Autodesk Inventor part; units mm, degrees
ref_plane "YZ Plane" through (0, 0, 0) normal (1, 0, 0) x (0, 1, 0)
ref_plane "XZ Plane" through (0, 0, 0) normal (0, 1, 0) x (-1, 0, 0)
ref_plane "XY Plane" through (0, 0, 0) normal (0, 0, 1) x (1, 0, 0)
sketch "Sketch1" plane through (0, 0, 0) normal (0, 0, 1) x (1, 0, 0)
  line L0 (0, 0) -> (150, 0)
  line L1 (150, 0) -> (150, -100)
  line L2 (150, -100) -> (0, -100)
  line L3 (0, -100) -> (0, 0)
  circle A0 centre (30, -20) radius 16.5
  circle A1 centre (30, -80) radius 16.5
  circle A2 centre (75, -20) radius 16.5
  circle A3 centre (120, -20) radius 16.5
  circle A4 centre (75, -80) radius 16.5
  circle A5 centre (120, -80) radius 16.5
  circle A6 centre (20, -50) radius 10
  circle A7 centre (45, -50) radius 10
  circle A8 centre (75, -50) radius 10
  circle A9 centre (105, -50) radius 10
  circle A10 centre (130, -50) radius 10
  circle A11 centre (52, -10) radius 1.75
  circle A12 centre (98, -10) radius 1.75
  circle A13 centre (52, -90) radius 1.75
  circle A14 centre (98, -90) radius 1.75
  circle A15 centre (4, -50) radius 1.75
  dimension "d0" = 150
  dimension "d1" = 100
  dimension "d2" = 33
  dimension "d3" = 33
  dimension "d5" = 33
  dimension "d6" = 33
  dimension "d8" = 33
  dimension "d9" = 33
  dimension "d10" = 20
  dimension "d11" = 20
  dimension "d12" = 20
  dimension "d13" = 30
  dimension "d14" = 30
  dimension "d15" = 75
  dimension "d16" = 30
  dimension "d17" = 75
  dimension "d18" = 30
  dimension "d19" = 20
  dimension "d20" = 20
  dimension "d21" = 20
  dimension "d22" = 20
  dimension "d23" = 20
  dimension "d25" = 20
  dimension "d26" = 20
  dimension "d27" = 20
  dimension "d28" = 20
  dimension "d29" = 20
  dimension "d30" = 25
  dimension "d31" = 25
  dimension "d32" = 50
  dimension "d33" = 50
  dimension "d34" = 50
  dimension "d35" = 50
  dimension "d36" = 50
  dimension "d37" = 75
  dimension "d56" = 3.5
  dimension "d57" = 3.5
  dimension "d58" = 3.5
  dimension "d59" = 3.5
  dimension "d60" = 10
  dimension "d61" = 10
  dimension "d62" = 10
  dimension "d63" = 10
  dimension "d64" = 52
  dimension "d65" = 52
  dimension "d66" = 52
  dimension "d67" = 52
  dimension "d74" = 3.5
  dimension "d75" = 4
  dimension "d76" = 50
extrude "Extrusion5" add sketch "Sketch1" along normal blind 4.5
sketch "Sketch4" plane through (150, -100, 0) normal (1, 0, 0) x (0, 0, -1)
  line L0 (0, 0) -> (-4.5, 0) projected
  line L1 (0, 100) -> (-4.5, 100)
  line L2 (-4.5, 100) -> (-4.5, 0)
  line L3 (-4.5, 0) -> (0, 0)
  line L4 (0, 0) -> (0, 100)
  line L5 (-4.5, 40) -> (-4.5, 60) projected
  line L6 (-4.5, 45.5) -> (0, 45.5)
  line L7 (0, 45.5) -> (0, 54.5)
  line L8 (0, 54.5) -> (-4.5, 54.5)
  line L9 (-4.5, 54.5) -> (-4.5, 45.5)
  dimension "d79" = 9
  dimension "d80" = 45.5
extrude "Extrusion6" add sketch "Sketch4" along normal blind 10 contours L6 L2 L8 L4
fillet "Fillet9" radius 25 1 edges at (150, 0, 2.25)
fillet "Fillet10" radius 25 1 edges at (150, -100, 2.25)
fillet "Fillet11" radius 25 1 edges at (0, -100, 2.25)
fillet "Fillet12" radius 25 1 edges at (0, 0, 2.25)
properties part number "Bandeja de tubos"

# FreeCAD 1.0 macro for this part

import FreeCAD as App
import Part
import Sketcher


def edges_at(feature, points):
    """Names of the edges that pass closest to the given points."""
    edges = feature.Shape.Edges
    near = lambda p: min(range(len(edges)), key=lambda i: edges[i].distToShape(Part.Vertex(*p))[0])
    return sorted({f"Edge{near(p) + 1}" for p in points})


def add_polygon(sketch, points):
    """Adds a closed chain of lines whose ends are joined by coincident constraints."""
    first, n = sketch.GeometryCount, len(points)
    for a, b in zip(points, points[1:] + points[:1]):
        sketch.addGeometry(Part.LineSegment(App.Vector(*a, 0), App.Vector(*b, 0)), False)
    for i in range(n):
        sketch.addConstraint(Sketcher.Constraint("Coincident", first + i, 2, first + (i + 1) % n, 1))

doc = App.newDocument("Part")
params = doc.addObject("Spreadsheet::Sheet", "Params")
for row, (alias, value) in enumerate([
    ("sketch1_diameter", "33 mm"),
    ("sketch1_diameter2", "20 mm"),
    ("sketch1_diameter3", "3.5 mm"),
    ("sketch1_width", "150 mm"),
    ("sketch1_height", "100 mm"),
    ("pad1_length", "4.5 mm"),
    ("sketch2_width", "9 mm"),
    ("sketch2_height", "4.5 mm"),
    ("pad2_length", "10 mm"),
    ("fillet_radius", "25 mm"),
    ("fillet2_radius", "25 mm"),
    ("fillet3_radius", "25 mm"),
    ("fillet4_radius", "25 mm"),
], start=1):
    params.set(f"A{row}", alias)
    params.set(f"B{row}", "=" + value)
    params.setAlias(f"B{row}", alias)

body = doc.addObject("PartDesign::Body", "Body")

# Sketch on XY plane
sketch1 = body.newObject("Sketcher::SketchObject", "Sketch")
sketch1.AttachmentSupport = (doc.getObject("XY_Plane"), [""])
sketch1.MapMode = "FlatFace"
add_polygon(sketch1, [(150, 0), (0, 0), (0, -100), (150, -100)])  # lines 0-3
sketch1.addGeometry(Part.Circle(App.Vector(30, -80, 0), App.Vector(0, 0, 1), 16.5), False)  # 4
sketch1.addGeometry(Part.Circle(App.Vector(52, -90, 0), App.Vector(0, 0, 1), 1.75), False)  # 5
sketch1.addGeometry(Part.Circle(App.Vector(98, -90, 0), App.Vector(0, 0, 1), 1.75), False)  # 6
sketch1.addGeometry(Part.Circle(App.Vector(75, -80, 0), App.Vector(0, 0, 1), 16.5), False)  # 7
sketch1.addGeometry(Part.Circle(App.Vector(120, -80, 0), App.Vector(0, 0, 1), 16.5), False)  # 8
sketch1.addGeometry(Part.Circle(App.Vector(4, -50, 0), App.Vector(0, 0, 1), 1.75), False)  # 9
sketch1.addGeometry(Part.Circle(App.Vector(20, -50, 0), App.Vector(0, 0, 1), 10), False)  # 10
sketch1.addGeometry(Part.Circle(App.Vector(45, -50, 0), App.Vector(0, 0, 1), 10), False)  # 11
sketch1.addGeometry(Part.Circle(App.Vector(30, -20, 0), App.Vector(0, 0, 1), 16.5), False)  # 12
sketch1.addGeometry(Part.Circle(App.Vector(52, -10, 0), App.Vector(0, 0, 1), 1.75), False)  # 13
sketch1.addGeometry(Part.Circle(App.Vector(75, -50, 0), App.Vector(0, 0, 1), 10), False)  # 14
sketch1.addGeometry(Part.Circle(App.Vector(105, -50, 0), App.Vector(0, 0, 1), 10), False)  # 15
sketch1.addGeometry(Part.Circle(App.Vector(130, -50, 0), App.Vector(0, 0, 1), 10), False)  # 16
sketch1.addGeometry(Part.Circle(App.Vector(75, -20, 0), App.Vector(0, 0, 1), 16.5), False)  # 17
sketch1.addGeometry(Part.Circle(App.Vector(98, -10, 0), App.Vector(0, 0, 1), 1.75), False)  # 18
sketch1.addGeometry(Part.Circle(App.Vector(120, -20, 0), App.Vector(0, 0, 1), 16.5), False)  # 19
sketch1.addConstraint([
    Sketcher.Constraint("Horizontal", 0),
    Sketcher.Constraint("Vertical", 1),
    Sketcher.Constraint("Horizontal", 2),
    Sketcher.Constraint("Vertical", 3),
    Sketcher.Constraint("Coincident", 0, 2, -1, 1),
    Sketcher.Constraint("Equal", 5, 6),
    Sketcher.Constraint("Equal", 4, 7),
    Sketcher.Constraint("Equal", 7, 8),
    Sketcher.Constraint("Equal", 6, 9),
    Sketcher.Constraint("Equal", 10, 11),
    Sketcher.Constraint("Equal", 8, 12),
    Sketcher.Constraint("Equal", 9, 13),
    Sketcher.Constraint("Equal", 11, 14),
    Sketcher.Constraint("Equal", 14, 15),
    Sketcher.Constraint("Equal", 15, 16),
    Sketcher.Constraint("Equal", 12, 17),
    Sketcher.Constraint("Equal", 13, 18),
    Sketcher.Constraint("Equal", 17, 19),
    Sketcher.Constraint("Horizontal", 5, 3, 6, 3),
    Sketcher.Constraint("Horizontal", 4, 3, 7, 3),
    Sketcher.Constraint("Horizontal", 7, 3, 8, 3),
    Sketcher.Constraint("Horizontal", 9, 3, 10, 3),
    Sketcher.Constraint("Horizontal", 10, 3, 11, 3),
    Sketcher.Constraint("Horizontal", 11, 3, 14, 3),
    Sketcher.Constraint("Horizontal", 14, 3, 15, 3),
    Sketcher.Constraint("Horizontal", 15, 3, 16, 3),
    Sketcher.Constraint("Horizontal", 12, 3, 17, 3),
    Sketcher.Constraint("Horizontal", 13, 3, 18, 3),
    Sketcher.Constraint("Horizontal", 17, 3, 19, 3),
    Sketcher.Constraint("Vertical", 4, 3, 12, 3),
    Sketcher.Constraint("Vertical", 5, 3, 13, 3),
    Sketcher.Constraint("Vertical", 7, 3, 14, 3),
    Sketcher.Constraint("Vertical", 14, 3, 17, 3),
    Sketcher.Constraint("Vertical", 6, 3, 18, 3),
    Sketcher.Constraint("Vertical", 8, 3, 19, 3),
    Sketcher.Constraint("Diameter", 4, 33.0),
    Sketcher.Constraint("Diameter", 10, 20.0),
    Sketcher.Constraint("Diameter", 5, 3.5),
    Sketcher.Constraint("DistanceX", 0, 2, 0, 1, 150.0),
    Sketcher.Constraint("DistanceY", 1, 2, 1, 1, 100.0),
    Sketcher.Constraint("DistanceX", -1, 1, 4, 3, 30.0),
    Sketcher.Constraint("DistanceX", -1, 1, 5, 3, 52.0),
    Sketcher.Constraint("DistanceX", -1, 1, 7, 3, 75.0),
    Sketcher.Constraint("DistanceX", -1, 1, 9, 3, 4.0),
    Sketcher.Constraint("DistanceY", 9, 3, -1, 1, 50.0),
    Sketcher.Constraint("DistanceX", -1, 1, 10, 3, 20.0),
    Sketcher.Constraint("DistanceY", 12, 3, -1, 1, 20.0),
    Sketcher.Constraint("DistanceY", 13, 3, -1, 1, 10.0),
    Sketcher.Constraint("DistanceY", 5, 3, 4, 3, 10.0),
    Sketcher.Constraint("DistanceY", 4, 3, 9, 3, 30.0),
    Sketcher.Constraint("DistanceX", 10, 3, 11, 3, 25.0),
    Sketcher.Constraint("DistanceX", 14, 3, 15, 3, 30.0),
    Sketcher.Constraint("DistanceX", 15, 3, 16, 3, 25.0),
    Sketcher.Constraint("DistanceX", 8, 3, 16, 3, 10.0),
    Sketcher.Constraint("DistanceX", 6, 3, 2, 2, 52.0),
])
sketch1.setExpression("Constraints[39]", "Params.sketch1_diameter")
sketch1.setExpression("Constraints[40]", "Params.sketch1_diameter2")
sketch1.setExpression("Constraints[41]", "Params.sketch1_diameter3")
sketch1.setExpression("Constraints[42]", "Params.sketch1_width")
sketch1.setExpression("Constraints[43]", "Params.sketch1_height")
pad1 = body.newObject("PartDesign::Pad", "Pad")
pad1.Profile = sketch1
pad1.setExpression("Length", "Params.pad1_length")

# Sketch on YZ plane
sketch2 = body.newObject("Sketcher::SketchObject", "Sketch001")
sketch2.AttachmentSupport = (doc.getObject("YZ_Plane"), [""])
sketch2.MapMode = "FlatFace"
sketch2.AttachmentOffset = App.Placement(App.Vector(0, 0, 150), App.Rotation())
add_polygon(sketch2, [(-54.5, 4.5), (-54.5, 0), (-45.5, 0), (-45.5, 4.5)])  # lines 0-3
sketch2.addConstraint([
    Sketcher.Constraint("Vertical", 0),
    Sketcher.Constraint("Horizontal", 1),
    Sketcher.Constraint("Vertical", 2),
    Sketcher.Constraint("Horizontal", 3),
    Sketcher.Constraint("PointOnObject", 0, 2, -1),
    Sketcher.Constraint("DistanceX", 1, 1, 1, 2, 9.0),
    Sketcher.Constraint("DistanceX", 1, 2, -1, 1, 45.5),
    Sketcher.Constraint("DistanceY", 0, 2, 0, 1, 4.5),
])
sketch2.setExpression("Constraints[9]", "Params.sketch2_width")
sketch2.setExpression("Constraints[11]", "Params.sketch2_height")
pad2 = body.newObject("PartDesign::Pad", "Pad001")
pad2.Profile = sketch2
pad2.setExpression("Length", "Params.pad2_length")
doc.recompute()

fillet = body.newObject("PartDesign::Fillet", "Fillet")
fillet.Base = (pad2, edges_at(pad2, [(150, 0, 2.25)]))
fillet.setExpression("Radius", "Params.fillet_radius")
doc.recompute()

fillet2 = body.newObject("PartDesign::Fillet", "Fillet001")
fillet2.Base = (fillet, edges_at(fillet, [(150, -100, 2.25)]))
fillet2.setExpression("Radius", "Params.fillet2_radius")
doc.recompute()

fillet3 = body.newObject("PartDesign::Fillet", "Fillet002")
fillet3.Base = (fillet2, edges_at(fillet2, [(0, -100, 2.25)]))
fillet3.setExpression("Radius", "Params.fillet3_radius")
doc.recompute()

fillet4 = body.newObject("PartDesign::Fillet", "Fillet003")
fillet4.Base = (fillet3, edges_at(fillet3, [(0, 0, 2.25)]))
fillet4.setExpression("Radius", "Params.fillet4_radius")

doc.recompute()
